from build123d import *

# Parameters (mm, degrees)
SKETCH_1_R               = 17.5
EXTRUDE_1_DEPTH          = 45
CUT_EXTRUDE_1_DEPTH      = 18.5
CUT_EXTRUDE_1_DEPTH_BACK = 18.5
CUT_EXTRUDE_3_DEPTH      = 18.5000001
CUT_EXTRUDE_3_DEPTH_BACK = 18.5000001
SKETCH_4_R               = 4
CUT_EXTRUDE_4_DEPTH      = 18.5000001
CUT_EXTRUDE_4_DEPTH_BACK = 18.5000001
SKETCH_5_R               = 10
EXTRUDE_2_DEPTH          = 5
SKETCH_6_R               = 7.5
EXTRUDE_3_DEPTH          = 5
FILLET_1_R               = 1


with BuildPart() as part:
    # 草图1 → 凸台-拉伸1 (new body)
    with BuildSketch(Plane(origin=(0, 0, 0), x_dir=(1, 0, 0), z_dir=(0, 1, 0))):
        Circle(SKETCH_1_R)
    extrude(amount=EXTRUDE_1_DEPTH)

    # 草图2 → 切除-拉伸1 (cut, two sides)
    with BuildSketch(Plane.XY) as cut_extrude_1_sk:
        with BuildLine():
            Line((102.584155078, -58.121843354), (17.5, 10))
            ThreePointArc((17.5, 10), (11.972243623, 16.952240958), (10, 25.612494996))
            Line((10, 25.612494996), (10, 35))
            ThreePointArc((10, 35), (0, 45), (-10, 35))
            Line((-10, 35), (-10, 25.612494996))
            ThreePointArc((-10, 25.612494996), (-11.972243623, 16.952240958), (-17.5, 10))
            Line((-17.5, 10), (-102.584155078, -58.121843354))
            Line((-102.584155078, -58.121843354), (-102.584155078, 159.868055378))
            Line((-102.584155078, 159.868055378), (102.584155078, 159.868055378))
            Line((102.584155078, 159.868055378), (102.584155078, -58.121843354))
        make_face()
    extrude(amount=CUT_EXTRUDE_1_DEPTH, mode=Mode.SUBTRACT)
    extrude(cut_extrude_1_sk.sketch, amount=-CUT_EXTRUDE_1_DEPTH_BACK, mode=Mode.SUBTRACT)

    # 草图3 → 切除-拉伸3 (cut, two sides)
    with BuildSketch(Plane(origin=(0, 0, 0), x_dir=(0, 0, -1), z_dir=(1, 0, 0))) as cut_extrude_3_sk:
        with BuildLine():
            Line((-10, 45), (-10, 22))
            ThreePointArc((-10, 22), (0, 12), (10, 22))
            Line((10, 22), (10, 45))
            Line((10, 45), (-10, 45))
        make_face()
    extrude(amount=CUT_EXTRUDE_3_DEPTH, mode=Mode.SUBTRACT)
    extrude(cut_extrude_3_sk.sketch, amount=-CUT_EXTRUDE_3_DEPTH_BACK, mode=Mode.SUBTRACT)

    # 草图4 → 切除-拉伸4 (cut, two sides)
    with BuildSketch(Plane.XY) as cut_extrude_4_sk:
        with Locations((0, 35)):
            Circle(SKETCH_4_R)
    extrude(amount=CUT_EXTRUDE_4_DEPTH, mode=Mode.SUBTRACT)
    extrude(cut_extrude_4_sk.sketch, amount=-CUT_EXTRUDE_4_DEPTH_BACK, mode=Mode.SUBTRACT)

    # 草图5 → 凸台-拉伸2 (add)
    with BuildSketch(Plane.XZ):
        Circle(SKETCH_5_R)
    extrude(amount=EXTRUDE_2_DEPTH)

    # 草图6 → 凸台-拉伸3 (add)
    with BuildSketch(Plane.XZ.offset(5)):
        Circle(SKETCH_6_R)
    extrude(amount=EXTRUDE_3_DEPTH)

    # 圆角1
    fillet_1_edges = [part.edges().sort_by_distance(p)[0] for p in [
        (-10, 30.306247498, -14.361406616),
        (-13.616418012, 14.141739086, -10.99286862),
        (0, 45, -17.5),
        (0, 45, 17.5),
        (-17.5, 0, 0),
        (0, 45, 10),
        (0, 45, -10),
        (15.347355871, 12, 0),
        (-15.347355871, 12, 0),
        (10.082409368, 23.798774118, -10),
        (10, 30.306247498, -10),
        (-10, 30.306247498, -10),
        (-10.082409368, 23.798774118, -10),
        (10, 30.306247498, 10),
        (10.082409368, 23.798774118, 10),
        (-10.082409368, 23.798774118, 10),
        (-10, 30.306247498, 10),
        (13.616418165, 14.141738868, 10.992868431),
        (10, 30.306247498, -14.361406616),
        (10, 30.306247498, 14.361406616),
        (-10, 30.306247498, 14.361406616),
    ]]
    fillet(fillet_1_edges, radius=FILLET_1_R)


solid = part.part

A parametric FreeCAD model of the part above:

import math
import FreeCAD as App
import Part
import Sketcher

V = App.Vector


def edges_at(feature, points):
    """Names of the edges that pass closest to the given points."""
    edges = feature.Shape.Edges
    near = lambda p: min(range(len(edges)), key=lambda i: edges[i].distToShape(Part.Vertex(*p))[0])
    return sorted({f"Edge{near(p) + 1}" for p in points})

doc = App.newDocument("Part")
body = doc.addObject("PartDesign::Body", "Body")

# Sketch on XZ plane
sketch1 = doc.addObject("Sketcher::SketchObject", "Sketch")
body.addObject(sketch1)
sketch1.AttachmentSupport = (doc.XZ_Plane, [""])
sketch1.MapMode = "FlatFace"
sketch1.addGeometry(Part.Circle(V(0, 0, 0), V(0, 0, 1), 18), False)
sketch1.addConstraint(Sketcher.Constraint("Coincident", 0, 3, -1, 1))
sketch1.addConstraint(Sketcher.Constraint("Diameter", 0, 35.0))
pad1 = doc.addObject("PartDesign::Pad", "Pad")
body.addObject(pad1)
pad1.Profile = sketch1
pad1.Length = 45
pad1.Reversed = True

# Sketch on XY plane
sketch2 = doc.addObject("Sketcher::SketchObject", "Sketch001")
body.addObject(sketch2)
sketch2.AttachmentSupport = (doc.XY_Plane, [""])
sketch2.MapMode = "FlatFace"
sketch2.addGeometry(Part.LineSegment(V(18, 10, 0), V(103, -58, 0)), False)
sketch2.addGeometry(Part.LineSegment(V(103, -58, 0), V(103, 160, 0)), False)
sketch2.addGeometry(Part.LineSegment(V(103, 160, 0), V(-103, 160, 0)), False)
sketch2.addGeometry(Part.LineSegment(V(-103, 160, 0), V(-103, -58, 0)), False)
sketch2.addGeometry(Part.LineSegment(V(-103, -58, 0), V(-18, 10, 0)), False)
sketch2.addGeometry(Part.ArcOfCircle(Part.Circle(V(-30, 26, 0), V(0, 0, 1), 20), math.radians(-51), math.radians(0)), False)
sketch2.addGeometry(Part.LineSegment(V(-10, 26, 0), V(-10, 35, 0)), False)
sketch2.addGeometry(Part.ArcOfCircle(Part.Circle(V(0, 35, 0), V(0, 0, 1), 10), math.radians(0), math.radians(180)), False)
sketch2.addGeometry(Part.LineSegment(V(10, 35, 0), V(10, 26, 0)), False)
sketch2.addGeometry(Part.ArcOfCircle(Part.Circle(V(30, 26, 0), V(0, 0, 1), 20), math.radians(-180), math.radians(-129)), False)
sketch2.addConstraint(Sketcher.Constraint("Coincident", 0, 2, 1, 1))
sketch2.addConstraint(Sketcher.Constraint("Coincident", 1, 2, 2, 1))
sketch2.addConstraint(Sketcher.Constraint("Coincident", 2, 2, 3, 1))
sketch2.addConstraint(Sketcher.Constraint("Coincident", 3, 2, 4, 1))
sketch2.addConstraint(Sketcher.Constraint("Tangent", 4, 2, 5, 1))
sketch2.addConstraint(Sketcher.Constraint("Tangent", 5, 2, 6, 1))
sketch2.addConstraint(Sketcher.Constraint("Tangent", 6, 2, 7, 2))
sketch2.addConstraint(Sketcher.Constraint("Tangent", 7, 1, 8, 1))
sketch2.addConstraint(Sketcher.Constraint("Tangent", 8, 2, 9, 1))
sketch2.addConstraint(Sketcher.Constraint("Tangent", 9, 2, 0, 1))
sketch2.addConstraint(Sketcher.Constraint("Vertical", 1))
sketch2.addConstraint(Sketcher.Constraint("Horizontal", 2))
sketch2.addConstraint(Sketcher.Constraint("Vertical", 3))
sketch2.addConstraint(Sketcher.Constraint("Vertical", 6))
sketch2.addConstraint(Sketcher.Constraint("Vertical", 8))
sketch2.addConstraint(Sketcher.Constraint("Equal", 5, 9))
sketch2.addConstraint(Sketcher.Constraint("Symmetric", 5, 3, 9, 3, -2))
sketch2.addConstraint(Sketcher.Constraint("Symmetric", 0, 2, 3, 2, -2))
sketch2.addConstraint(Sketcher.Constraint("Radius", 5, 20.0))
sketch2.addConstraint(Sketcher.Constraint("Radius", 7, 10.0))
sketch2.addConstraint(Sketcher.Constraint("DistanceY", -1, 1, 7, 3, 35.0))
sketch2.addConstraint(Sketcher.Constraint("DistanceY", -1, 1, 4, 2, 10.0))
sketch2.addConstraint(Sketcher.Constraint("DistanceX", 4, 2, -1, 1, 17.5))
sketch2.addConstraint(Sketcher.Constraint("DistanceY", 1, 1, 1, 2, 217.989899))
sketch2.addConstraint(Sketcher.Constraint("DistanceX", 2, 2, 2, 1, 205.16831))
pocket1 = doc.addObject("PartDesign::Pocket", "Pocket")
body.addObject(pocket1)
pocket1.Profile = sketch2
pocket1.Type = "ThroughAll"
pocket1.Midplane = True

# Sketch on YZ plane
sketch3 = doc.addObject("Sketcher::SketchObject", "Sketch002")
body.addObject(sketch3)
sketch3.AttachmentSupport = (doc.YZ_Plane, [""])
sketch3.MapMode = "FlatFace"
sketch3.addGeometry(Part.LineSegment(V(45, 10, 0), V(22, 10, 0)), False)
sketch3.addGeometry(Part.ArcOfCircle(Part.Circle(V(22, 0, 0), V(0, 0, 1), 10), math.radians(90), math.radians(270)), False)
sketch3.addGeometry(Part.LineSegment(V(22, -10, 0), V(45, -10, 0)), False)
sketch3.addGeometry(Part.LineSegment(V(45, -10, 0), V(45, 10, 0)), False)
sketch3.addConstraint(Sketcher.Constraint("Tangent", 0, 2, 1, 1))
sketch3.addConstraint(Sketcher.Constraint("Tangent", 1, 2, 2, 1))
sketch3.addConstraint(Sketcher.Constraint("Coincident", 2, 2, 3, 1))
sketch3.addConstraint(Sketcher.Constraint("Coincident", 3, 2, 0, 1))
sketch3.addConstraint(Sketcher.Constraint("Horizontal", 0))
sketch3.addConstraint(Sketcher.Constraint("Horizontal", 2))
sketch3.addConstraint(Sketcher.Constraint("Vertical", 3))
sketch3.addConstraint(Sketcher.Constraint("PointOnObject", 1, 3, -1))
sketch3.addConstraint(Sketcher.Constraint("Radius", 1, 10.0))
sketch3.addConstraint(Sketcher.Constraint("DistanceX", 0, 2, 0, 1, 23.0))
sketch3.addConstraint(Sketcher.Constraint("DistanceX", -1, 1, 1, 3, 22.0))
pocket2 = doc.addObject("PartDesign::Pocket", "Pocket001")
body.addObject(pocket2)
pocket2.Profile = sketch3
pocket2.Type = "ThroughAll"
pocket2.Midplane = True

# Sketch on XY plane
sketch4 = doc.addObject("Sketcher::SketchObject", "Sketch003")
body.addObject(sketch4)
sketch4.AttachmentSupport = (doc.XY_Plane, [""])
sketch4.MapMode = "FlatFace"
sketch4.addGeometry(Part.Circle(V(0, 35, 0), V(0, 0, 1), 4), False)
sketch4.addConstraint(Sketcher.Constraint("PointOnObject", 0, 3, -2))
sketch4.addConstraint(Sketcher.Constraint("Diameter", 0, 8.0))
sketch4.addConstraint(Sketcher.Constraint("DistanceY", -1, 1, 0, 3, 35.0))
pocket3 = doc.addObject("PartDesign::Pocket", "Pocket002")
body.addObject(pocket3)
pocket3.Profile = sketch4
pocket3.Type = "ThroughAll"
pocket3.Midplane = True

# Sketch on XZ plane
sketch5 = doc.addObject("Sketcher::SketchObject", "Sketch004")
body.addObject(sketch5)
sketch5.AttachmentSupport = (doc.XZ_Plane, [""])
sketch5.MapMode = "FlatFace"
sketch5.addGeometry(Part.Circle(V(0, 0, 0), V(0, 0, 1), 10), False)
sketch5.addConstraint(Sketcher.Constraint("Coincident", 0, 3, -1, 1))
sketch5.addConstraint(Sketcher.Constraint("Diameter", 0, 20.0))
pad2 = doc.addObject("PartDesign::Pad", "Pad001")
body.addObject(pad2)
pad2.Profile = sketch5
pad2.Length = 5

# Sketch on XZ plane
sketch6 = doc.addObject("Sketcher::SketchObject", "Sketch005")
body.addObject(sketch6)
sketch6.AttachmentSupport = (doc.XZ_Plane, [""])
sketch6.MapMode = "FlatFace"
sketch6.AttachmentOffset = App.Placement(V(0, 0, 5), App.Rotation())
sketch6.addGeometry(Part.Circle(V(0, 0, 0), V(0, 0, 1), 8), False)
sketch6.addConstraint(Sketcher.Constraint("Coincident", 0, 3, -1, 1))
sketch6.addConstraint(Sketcher.Constraint("Diameter", 0, 15.0))
pad3 = doc.addObject("PartDesign::Pad", "Pad002")
body.addObject(pad3)
pad3.Profile = sketch6
pad3.Length = 5
doc.recompute()

fillet = doc.addObject("PartDesign::Fillet", "Fillet")
body.addObject(fillet)
fillet.Base = (pad3, edges_at(pad3, [
    (-10, 30.306, -14.361),
    (-13.616, 14.142, -10.993),
    (0, 45, -17.5),
    (0, 45, 17.5),
    (-17.5, 0, 0),
    (0, 45, 10),
    (0, 45, -10),
    (15.347, 12, 0),
    (-15.347, 12, 0),
    (10.082, 23.799, -10),
    (10, 30.306, -10),
    (-10, 30.306, -10),
    (-10.082, 23.799, -10),
    (10, 30.306, 10),
    (10.082, 23.799, 10),
    (-10.082, 23.799, 10),
    (-10, 30.306, 10),
    (13.616, 14.142, 10.993),
    (10, 30.306, -14.361),
    (10, 30.306, 14.361),
    (-10, 30.306, 14.361),
]))
fillet.Radius = 1

doc.recompute()
